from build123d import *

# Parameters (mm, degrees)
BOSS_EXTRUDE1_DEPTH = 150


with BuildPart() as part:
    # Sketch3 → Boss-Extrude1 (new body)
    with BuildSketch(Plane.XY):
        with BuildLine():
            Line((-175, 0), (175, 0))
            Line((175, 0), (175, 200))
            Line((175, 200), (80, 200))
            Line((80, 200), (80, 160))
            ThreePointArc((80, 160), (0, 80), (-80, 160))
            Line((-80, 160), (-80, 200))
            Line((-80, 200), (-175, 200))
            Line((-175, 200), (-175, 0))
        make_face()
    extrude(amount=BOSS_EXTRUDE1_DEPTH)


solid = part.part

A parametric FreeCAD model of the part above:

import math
import FreeCAD as App
import Part
import Sketcher
from FreeCAD import Vector

doc = App.newDocument("Part")
params = doc.addObject("Spreadsheet::Sheet", "Params")
for row, (alias, value) in enumerate([
    ("sketch1_radius", "80 mm"),
    ("sketch1_width", "350 mm"),
    ("sketch1_height", "200 mm"),
    ("sketch1_height2", "40 mm"),
    ("pad1_length", "150 mm"),
], start=1):
    params.set(f"A{row}", alias)
    params.set(f"B{row}", "=" + value)
    params.setAlias(f"B{row}", alias)

body = doc.addObject("PartDesign::Body", "Body")

# Sketch on XY plane
sketch1 = body.newObject("Sketcher::SketchObject", "Sketch")
sketch1.AttachmentSupport = (doc.getObject("XY_Plane"), [""])
sketch1.MapMode = "FlatFace"
sketch1.addGeometry([
    Part.LineSegment(Vector(-175, 0, 0), Vector(175, 0, 0)),  # 0
    Part.LineSegment(Vector(175, 0, 0), Vector(175, 200, 0)),  # 1
    Part.LineSegment(Vector(175, 200, 0), Vector(80, 200, 0)),  # 2
    Part.LineSegment(Vector(80, 200, 0), Vector(80, 160, 0)),  # 3
    Part.ArcOfCircle(Part.Circle(Vector(0, 160, 0), Vector(0, 0, 1), 80), math.radians(180), math.radians(360)),  # 4
    Part.LineSegment(Vector(-80, 160, 0), Vector(-80, 200, 0)),  # 5
    Part.LineSegment(Vector(-80, 200, 0), Vector(-175, 200, 0)),  # 6
    Part.LineSegment(Vector(-175, 200, 0), Vector(-175, 0, 0)),  # 7
], False)
sketch1.addConstraint([
    Sketcher.Constraint("Coincident", 0, 2, 1, 1),
    Sketcher.Constraint("Coincident", 1, 2, 2, 1),
    Sketcher.Constraint("Coincident", 2, 2, 3, 1),
    Sketcher.Constraint("Tangent", 3, 2, 4, 2),
    Sketcher.Constraint("Tangent", 4, 1, 5, 1),
    Sketcher.Constraint("Coincident", 5, 2, 6, 1),
    Sketcher.Constraint("Coincident", 6, 2, 7, 1),
    Sketcher.Constraint("Coincident", 7, 2, 0, 1),
    Sketcher.Constraint("Horizontal", 0),
    Sketcher.Constraint("Vertical", 1),
    Sketcher.Constraint("Horizontal", 2),
    Sketcher.Constraint("Vertical", 3),
    Sketcher.Constraint("Vertical", 5),
    Sketcher.Constraint("Horizontal", 6),
    Sketcher.Constraint("Vertical", 7),
    Sketcher.Constraint("Symmetric", 0, 2, 7, 2, -1, 1),
    Sketcher.Constraint("Symmetric", 2, 2, 5, 2, -2),
    Sketcher.Constraint("Radius", 4, 80.0),
    Sketcher.Constraint("DistanceX", 0, 1, 0, 2, 350.0),
    Sketcher.Constraint("DistanceY", 1, 1, 1, 2, 200.0),
    Sketcher.Constraint("DistanceY", 3, 2, 3, 1, 40.0),
])
sketch1.setExpression("Constraints[17]", "Params.sketch1_radius")
sketch1.setExpression("Constraints[18]", "Params.sketch1_width")
sketch1.setExpression("Constraints[19]", "Params.sketch1_height")
sketch1.setExpression("Constraints[20]", "Params.sketch1_height2")
pad1 = body.newObject("PartDesign::Pad", "Pad")
pad1.Profile = sketch1
pad1.setExpression("Length", "Params.pad1_length")

doc.recompute()
